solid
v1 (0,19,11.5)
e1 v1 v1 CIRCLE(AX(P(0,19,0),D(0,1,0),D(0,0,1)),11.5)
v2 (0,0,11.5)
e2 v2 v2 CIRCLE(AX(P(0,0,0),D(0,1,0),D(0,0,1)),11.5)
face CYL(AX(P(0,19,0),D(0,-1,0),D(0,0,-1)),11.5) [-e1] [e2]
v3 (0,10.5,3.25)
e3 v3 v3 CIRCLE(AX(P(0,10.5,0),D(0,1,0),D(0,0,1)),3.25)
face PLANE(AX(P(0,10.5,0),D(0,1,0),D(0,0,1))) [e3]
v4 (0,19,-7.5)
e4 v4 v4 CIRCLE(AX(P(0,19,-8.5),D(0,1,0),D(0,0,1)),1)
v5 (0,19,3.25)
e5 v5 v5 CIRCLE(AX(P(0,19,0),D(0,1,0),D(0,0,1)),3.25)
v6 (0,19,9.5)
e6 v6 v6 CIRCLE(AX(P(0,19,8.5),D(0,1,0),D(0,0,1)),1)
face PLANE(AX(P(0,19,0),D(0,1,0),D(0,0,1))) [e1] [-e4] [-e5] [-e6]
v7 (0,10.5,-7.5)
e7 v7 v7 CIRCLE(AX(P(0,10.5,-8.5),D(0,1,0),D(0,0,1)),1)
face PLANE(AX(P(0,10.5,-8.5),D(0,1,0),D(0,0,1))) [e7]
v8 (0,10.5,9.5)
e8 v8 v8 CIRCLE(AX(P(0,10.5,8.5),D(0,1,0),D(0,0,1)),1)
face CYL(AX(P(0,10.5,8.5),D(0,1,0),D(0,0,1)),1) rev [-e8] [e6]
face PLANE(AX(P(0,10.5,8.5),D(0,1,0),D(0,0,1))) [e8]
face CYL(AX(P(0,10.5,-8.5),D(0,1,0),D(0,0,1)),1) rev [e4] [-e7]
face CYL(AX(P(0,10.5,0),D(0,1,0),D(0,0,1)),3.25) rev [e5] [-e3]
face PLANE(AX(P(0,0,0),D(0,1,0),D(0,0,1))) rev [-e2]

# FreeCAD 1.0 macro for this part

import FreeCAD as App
import Part
import Sketcher
from FreeCAD import Vector
Q = App.Units.Quantity

doc = App.newDocument("Part")
body = doc.addObject("PartDesign::Body", "Body")

sketch1 = body.newObject("Sketcher::SketchObject", "Sketch")
sketch1.AttachmentSupport = (doc.getObject("XZ_Plane"), [""])
sketch1.MapMode = "FlatFace"
sketch1.addGeometry(Part.Circle(Vector(0, 0, 0), Vector(0, 0, 1), 12), False)
sketch1.addConstraint(Sketcher.Constraint("Coincident", 0, 3, -1, 1))
sketch1.addConstraint(Sketcher.Constraint("Diameter", 0, Q("23 mm")))
pad1 = body.newObject("PartDesign::Pad", "Pad")
pad1.Profile = sketch1
pad1.Length = 19
pad1.Reversed = True

sketch2 = body.newObject("Sketcher::SketchObject", "Sketch001")
sketch2.AttachmentSupport = (doc.getObject("XZ_Plane"), [""])
sketch2.MapMode = "FlatFace"
sketch2.AttachmentOffset = App.Placement(Vector(0, 0, -19), App.Rotation())
sketch2.addGeometry(Part.Circle(Vector(0, -8.5, 0), Vector(0, 0, 1), 1), False)
sketch2.addGeometry(Part.Circle(Vector(0, 8.5, 0), Vector(0, 0, 1), 1), False)
sketch2.addGeometry(Part.Circle(Vector(0, 0, 0), Vector(0, 0, 1), 3.2), False)
sketch2.addConstraint(Sketcher.Constraint("Coincident", 2, 3, -1, 1))
sketch2.addConstraint(Sketcher.Constraint("Equal", 0, 1))
sketch2.addConstraint(Sketcher.Constraint("Symmetric", 0, 3, 1, 3, -1, 1))
sketch2.addConstraint(Sketcher.Constraint("PointOnObject", 0, 3, -2))
sketch2.addConstraint(Sketcher.Constraint("Diameter", 0, Q("2 mm")))
sketch2.addConstraint(Sketcher.Constraint("Diameter", 2, Q("6.5 mm")))
sketch2.addConstraint(Sketcher.Constraint("DistanceY", 0, 3, 1, 3, Q("17 mm")))
pocket1 = body.newObject("PartDesign::Pocket", "Pocket")
pocket1.Profile = sketch2
pocket1.Length = 8.5
pocket1.Reversed = True

doc.recompute()
